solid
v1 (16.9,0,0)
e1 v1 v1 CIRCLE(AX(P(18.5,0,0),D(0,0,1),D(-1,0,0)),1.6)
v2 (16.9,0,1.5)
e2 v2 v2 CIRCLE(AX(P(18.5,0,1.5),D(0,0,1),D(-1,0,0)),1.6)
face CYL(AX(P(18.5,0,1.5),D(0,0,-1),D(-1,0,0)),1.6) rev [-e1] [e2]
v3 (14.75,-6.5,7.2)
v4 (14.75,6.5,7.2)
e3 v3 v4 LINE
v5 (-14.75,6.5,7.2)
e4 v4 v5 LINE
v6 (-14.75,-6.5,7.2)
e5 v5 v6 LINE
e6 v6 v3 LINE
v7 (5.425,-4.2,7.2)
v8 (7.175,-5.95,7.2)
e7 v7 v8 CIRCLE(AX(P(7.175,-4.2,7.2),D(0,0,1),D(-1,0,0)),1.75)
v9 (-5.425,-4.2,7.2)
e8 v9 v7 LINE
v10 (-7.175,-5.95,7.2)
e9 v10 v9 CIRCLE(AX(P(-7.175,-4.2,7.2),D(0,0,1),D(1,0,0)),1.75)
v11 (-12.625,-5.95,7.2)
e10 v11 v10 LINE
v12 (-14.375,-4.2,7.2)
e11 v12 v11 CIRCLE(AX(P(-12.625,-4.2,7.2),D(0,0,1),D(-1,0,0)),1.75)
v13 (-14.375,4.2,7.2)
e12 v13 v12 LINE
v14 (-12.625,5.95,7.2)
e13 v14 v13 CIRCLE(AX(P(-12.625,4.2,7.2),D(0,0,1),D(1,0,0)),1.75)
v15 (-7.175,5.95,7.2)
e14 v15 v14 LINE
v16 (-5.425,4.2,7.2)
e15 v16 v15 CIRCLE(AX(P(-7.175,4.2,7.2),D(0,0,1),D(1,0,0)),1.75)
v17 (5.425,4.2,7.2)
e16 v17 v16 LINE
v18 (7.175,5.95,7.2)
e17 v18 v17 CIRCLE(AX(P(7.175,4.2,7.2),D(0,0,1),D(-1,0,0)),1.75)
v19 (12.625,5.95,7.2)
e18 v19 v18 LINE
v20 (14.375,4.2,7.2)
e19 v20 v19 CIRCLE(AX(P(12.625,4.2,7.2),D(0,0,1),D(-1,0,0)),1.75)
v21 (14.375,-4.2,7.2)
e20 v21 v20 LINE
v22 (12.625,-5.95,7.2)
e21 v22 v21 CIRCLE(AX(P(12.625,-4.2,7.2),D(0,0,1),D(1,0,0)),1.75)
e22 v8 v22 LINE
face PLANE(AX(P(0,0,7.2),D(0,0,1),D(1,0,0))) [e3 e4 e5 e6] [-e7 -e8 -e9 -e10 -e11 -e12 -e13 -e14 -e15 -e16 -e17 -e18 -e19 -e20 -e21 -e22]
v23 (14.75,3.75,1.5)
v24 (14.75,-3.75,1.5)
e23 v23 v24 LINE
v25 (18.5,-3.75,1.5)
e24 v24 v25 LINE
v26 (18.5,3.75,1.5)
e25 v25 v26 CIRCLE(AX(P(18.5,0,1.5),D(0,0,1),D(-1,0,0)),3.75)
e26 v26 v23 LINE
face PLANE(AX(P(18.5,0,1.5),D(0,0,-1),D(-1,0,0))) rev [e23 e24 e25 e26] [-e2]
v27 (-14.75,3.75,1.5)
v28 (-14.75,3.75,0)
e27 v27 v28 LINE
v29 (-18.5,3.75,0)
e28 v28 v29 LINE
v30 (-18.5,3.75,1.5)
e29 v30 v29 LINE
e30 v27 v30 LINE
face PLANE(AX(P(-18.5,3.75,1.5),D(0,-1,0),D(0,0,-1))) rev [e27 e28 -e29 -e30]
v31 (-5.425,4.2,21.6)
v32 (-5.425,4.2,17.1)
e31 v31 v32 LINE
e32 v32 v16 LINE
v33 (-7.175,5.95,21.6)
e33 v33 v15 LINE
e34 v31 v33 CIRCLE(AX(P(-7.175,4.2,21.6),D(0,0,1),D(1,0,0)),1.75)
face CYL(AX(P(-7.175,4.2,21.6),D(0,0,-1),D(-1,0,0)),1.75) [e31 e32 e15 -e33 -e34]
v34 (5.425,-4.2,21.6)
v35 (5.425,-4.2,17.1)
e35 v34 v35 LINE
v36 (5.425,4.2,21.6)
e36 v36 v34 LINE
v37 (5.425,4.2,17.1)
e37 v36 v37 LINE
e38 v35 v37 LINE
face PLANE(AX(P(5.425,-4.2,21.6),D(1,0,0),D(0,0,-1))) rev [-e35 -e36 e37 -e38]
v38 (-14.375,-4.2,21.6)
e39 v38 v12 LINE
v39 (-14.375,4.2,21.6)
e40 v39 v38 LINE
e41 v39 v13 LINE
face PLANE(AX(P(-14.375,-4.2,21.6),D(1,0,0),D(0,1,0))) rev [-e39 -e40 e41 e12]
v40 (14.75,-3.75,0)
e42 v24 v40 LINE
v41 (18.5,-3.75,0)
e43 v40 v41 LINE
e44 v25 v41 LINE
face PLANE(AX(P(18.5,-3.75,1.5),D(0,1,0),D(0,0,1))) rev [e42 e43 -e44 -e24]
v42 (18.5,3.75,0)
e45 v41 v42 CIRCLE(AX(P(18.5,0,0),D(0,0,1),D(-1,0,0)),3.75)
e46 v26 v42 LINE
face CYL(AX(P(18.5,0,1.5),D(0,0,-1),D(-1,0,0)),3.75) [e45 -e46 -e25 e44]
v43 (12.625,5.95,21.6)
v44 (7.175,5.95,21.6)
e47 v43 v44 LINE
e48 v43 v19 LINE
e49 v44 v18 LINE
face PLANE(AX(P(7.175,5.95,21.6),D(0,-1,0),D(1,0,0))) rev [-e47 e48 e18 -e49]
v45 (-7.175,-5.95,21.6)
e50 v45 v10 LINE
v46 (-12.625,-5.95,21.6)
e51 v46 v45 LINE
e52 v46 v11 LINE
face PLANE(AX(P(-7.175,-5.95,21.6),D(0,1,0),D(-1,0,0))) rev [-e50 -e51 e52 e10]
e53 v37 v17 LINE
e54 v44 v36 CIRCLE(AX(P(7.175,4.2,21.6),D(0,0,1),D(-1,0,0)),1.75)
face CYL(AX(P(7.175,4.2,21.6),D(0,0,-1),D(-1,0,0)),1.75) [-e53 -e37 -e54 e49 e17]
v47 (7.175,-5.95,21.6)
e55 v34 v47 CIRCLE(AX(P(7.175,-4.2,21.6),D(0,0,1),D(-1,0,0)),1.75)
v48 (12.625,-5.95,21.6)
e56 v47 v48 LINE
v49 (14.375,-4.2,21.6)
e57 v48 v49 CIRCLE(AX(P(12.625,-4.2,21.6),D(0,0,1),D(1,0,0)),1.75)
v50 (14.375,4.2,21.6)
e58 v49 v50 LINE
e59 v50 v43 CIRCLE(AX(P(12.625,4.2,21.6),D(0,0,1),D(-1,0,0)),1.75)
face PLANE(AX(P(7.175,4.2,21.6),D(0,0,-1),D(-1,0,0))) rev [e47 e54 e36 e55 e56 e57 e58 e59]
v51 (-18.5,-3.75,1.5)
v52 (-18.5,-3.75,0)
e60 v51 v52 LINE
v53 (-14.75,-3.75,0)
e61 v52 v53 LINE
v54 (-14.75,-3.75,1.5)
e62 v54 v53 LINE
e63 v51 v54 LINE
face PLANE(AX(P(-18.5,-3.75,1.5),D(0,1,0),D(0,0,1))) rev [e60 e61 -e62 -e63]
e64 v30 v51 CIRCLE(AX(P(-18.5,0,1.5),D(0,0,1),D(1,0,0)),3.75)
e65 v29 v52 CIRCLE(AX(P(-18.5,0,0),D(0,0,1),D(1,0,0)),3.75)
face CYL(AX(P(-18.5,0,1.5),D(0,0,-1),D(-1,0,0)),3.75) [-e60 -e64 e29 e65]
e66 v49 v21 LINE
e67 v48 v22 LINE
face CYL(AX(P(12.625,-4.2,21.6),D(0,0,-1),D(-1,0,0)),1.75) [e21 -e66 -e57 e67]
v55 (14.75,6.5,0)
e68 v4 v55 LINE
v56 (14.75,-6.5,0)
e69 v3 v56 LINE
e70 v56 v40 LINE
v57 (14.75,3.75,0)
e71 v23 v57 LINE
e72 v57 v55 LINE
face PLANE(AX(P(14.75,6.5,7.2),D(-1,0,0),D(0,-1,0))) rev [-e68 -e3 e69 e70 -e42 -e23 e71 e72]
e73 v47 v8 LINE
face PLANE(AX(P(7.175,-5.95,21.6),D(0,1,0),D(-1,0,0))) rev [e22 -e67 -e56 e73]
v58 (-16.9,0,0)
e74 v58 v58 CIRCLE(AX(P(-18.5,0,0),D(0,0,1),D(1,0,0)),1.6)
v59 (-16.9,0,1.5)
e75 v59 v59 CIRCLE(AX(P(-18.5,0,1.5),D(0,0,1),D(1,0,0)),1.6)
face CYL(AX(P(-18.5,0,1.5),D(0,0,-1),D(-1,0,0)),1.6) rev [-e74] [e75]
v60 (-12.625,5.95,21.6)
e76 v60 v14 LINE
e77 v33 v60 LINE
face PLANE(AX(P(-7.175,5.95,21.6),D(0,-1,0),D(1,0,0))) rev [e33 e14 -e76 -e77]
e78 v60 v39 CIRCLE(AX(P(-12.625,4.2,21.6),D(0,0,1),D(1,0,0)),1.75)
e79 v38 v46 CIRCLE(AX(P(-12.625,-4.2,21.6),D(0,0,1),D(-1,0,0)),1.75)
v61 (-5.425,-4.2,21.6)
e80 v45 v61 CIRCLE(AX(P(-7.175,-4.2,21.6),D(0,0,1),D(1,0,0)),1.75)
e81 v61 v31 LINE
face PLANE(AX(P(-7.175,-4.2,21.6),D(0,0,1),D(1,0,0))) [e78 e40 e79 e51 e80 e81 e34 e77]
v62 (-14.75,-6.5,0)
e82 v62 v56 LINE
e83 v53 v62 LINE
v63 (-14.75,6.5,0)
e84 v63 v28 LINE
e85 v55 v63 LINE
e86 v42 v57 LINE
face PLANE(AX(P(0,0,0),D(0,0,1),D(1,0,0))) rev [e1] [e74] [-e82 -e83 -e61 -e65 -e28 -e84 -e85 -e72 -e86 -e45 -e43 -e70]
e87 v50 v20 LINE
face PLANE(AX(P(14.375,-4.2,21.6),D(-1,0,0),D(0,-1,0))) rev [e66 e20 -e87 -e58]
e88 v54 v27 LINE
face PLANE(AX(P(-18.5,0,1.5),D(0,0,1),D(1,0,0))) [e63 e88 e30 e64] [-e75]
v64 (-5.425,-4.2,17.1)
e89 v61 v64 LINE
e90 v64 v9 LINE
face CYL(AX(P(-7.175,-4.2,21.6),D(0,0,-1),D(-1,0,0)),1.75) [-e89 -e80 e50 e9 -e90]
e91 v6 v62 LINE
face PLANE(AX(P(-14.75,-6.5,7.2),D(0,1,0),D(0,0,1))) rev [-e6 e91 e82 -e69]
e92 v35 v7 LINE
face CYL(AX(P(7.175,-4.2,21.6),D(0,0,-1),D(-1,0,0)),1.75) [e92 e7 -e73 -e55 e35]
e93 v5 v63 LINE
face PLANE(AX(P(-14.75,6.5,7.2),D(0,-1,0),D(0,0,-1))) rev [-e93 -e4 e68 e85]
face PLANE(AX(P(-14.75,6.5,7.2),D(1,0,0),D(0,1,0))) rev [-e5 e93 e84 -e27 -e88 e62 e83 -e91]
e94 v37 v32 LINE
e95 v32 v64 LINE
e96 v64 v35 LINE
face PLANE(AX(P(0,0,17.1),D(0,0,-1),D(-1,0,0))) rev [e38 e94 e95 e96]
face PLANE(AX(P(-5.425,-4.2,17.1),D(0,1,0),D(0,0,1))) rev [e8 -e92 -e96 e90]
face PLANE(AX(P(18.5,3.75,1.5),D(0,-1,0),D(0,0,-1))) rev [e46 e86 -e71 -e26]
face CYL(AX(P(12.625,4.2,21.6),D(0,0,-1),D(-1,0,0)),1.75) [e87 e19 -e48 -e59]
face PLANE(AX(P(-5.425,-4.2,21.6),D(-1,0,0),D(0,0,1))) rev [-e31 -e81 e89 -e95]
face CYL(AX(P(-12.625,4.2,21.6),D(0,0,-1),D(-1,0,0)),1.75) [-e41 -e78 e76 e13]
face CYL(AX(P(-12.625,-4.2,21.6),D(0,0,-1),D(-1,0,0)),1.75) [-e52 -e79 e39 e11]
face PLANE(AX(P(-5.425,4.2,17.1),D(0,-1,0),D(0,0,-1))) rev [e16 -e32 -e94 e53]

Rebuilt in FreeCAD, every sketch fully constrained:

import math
import FreeCAD as App
import Part
import Sketcher
from FreeCAD import Vector
Q = App.Units.Quantity

doc = App.newDocument("Part")
params = doc.addObject("Spreadsheet::Sheet", "Params")
for row, (alias, value) in enumerate([
    ("sketch1_height", "13 mm"),
    ("sketch1_width", "29.5 mm"),
    ("pad1_length", "7.2 mm"),
    ("sketch2_diameter", "3.2 mm"),
    ("sketch2_radius", "3.75 mm"),
    ("sketch2_width", "3.75 mm"),
    ("pad2_length", "1.5 mm"),
    ("sketch3_radius", "1.75 mm"),
    ("sketch3_height", "8.4 mm"),
    ("sketch3_width", "5.45 mm"),
    ("pad3_length", "14.4 mm"),
    ("sketch4_height", "8.4 mm"),
    ("sketch4_width", "10.85 mm"),
    ("pad4_length", "9.9 mm"),
], start=1):
    params.set(f"A{row}", alias)
    params.set(f"B{row}", "=" + value)
    params.setAlias(f"B{row}", alias)

body = doc.addObject("PartDesign::Body", "Body")

sketch1 = doc.addObject("Sketcher::SketchObject", "Sketch")
body.addObject(sketch1)
sketch1.AttachmentSupport = (doc.XY_Plane, [""])
sketch1.MapMode = "FlatFace"
sketch1.addGeometry([
    Part.LineSegment(Vector(-15, 6, 0), Vector(-15, -6, 0)),
    Part.LineSegment(Vector(-15, -6, 0), Vector(15, -6, 0)),
    Part.LineSegment(Vector(15, -6, 0), Vector(15, 6, 0)),
    Part.LineSegment(Vector(15, 6, 0), Vector(-15, 6, 0)),
], False)
sketch1.addConstraint([
    Sketcher.Constraint("Coincident", 0, 2, 1, 1),
    Sketcher.Constraint("Coincident", 1, 2, 2, 1),
    Sketcher.Constraint("Coincident", 2, 2, 3, 1),
    Sketcher.Constraint("Coincident", 3, 2, 0, 1),
    Sketcher.Constraint("Vertical", 0),
    Sketcher.Constraint("Horizontal", 1),
    Sketcher.Constraint("Vertical", 2),
    Sketcher.Constraint("Horizontal", 3),
    Sketcher.Constraint("Symmetric", 0, 2, 2, 2, -1, 1),
    Sketcher.Constraint("DistanceY", 0, 2, 0, 1, Q("13 mm")),
    Sketcher.Constraint("DistanceX", 1, 1, 1, 2, Q("29.5 mm")),
])
sketch1.setExpression("Constraints[9]", "Params.sketch1_height")
sketch1.setExpression("Constraints[10]", "Params.sketch1_width")
pad1 = doc.addObject("PartDesign::Pad", "Pad")
body.addObject(pad1)
pad1.Profile = sketch1
pad1.setExpression("Length", "Params.pad1_length")

sketch2 = doc.addObject("Sketcher::SketchObject", "Sketch001")
body.addObject(sketch2)
sketch2.AttachmentSupport = (doc.XY_Plane, [""])
sketch2.MapMode = "FlatFace"
sketch2.addGeometry([
    Part.LineSegment(Vector(-14.8, 3.8, 0), Vector(-18.5, 3.8, 0)),
    Part.ArcOfCircle(Part.Circle(Vector(-18.5, 0, 0), Vector(0, 0, 1), 3.8), math.radians(90), math.radians(270)),
    Part.LineSegment(Vector(-18.5, -3.8, 0), Vector(-14.8, -3.8, 0)),
    Part.LineSegment(Vector(-14.8, -3.8, 0), Vector(-14.8, 3.8, 0)),
    Part.Circle(Vector(-18.5, 0, 0), Vector(0, 0, 1), 1.6),
    Part.LineSegment(Vector(14.8, 3.8, 0), Vector(14.8, -3.8, 0)),
    Part.LineSegment(Vector(14.8, -3.8, 0), Vector(18.5, -3.8, 0)),
    Part.ArcOfCircle(Part.Circle(Vector(18.5, 0, 0), Vector(0, 0, 1), 3.8), math.radians(-90), math.radians(90)),
    Part.LineSegment(Vector(18.5, 3.8, 0), Vector(14.8, 3.8, 0)),
    Part.Circle(Vector(18.5, 0, 0), Vector(0, 0, 1), 1.6),
], False)
sketch2.addConstraint([
    Sketcher.Constraint("Tangent", 0, 2, 1, 1),
    Sketcher.Constraint("Tangent", 1, 2, 2, 1),
    Sketcher.Constraint("Coincident", 2, 2, 3, 1),
    Sketcher.Constraint("Coincident", 3, 2, 0, 1),
    Sketcher.Constraint("Coincident", 5, 2, 6, 1),
    Sketcher.Constraint("Tangent", 6, 2, 7, 1),
    Sketcher.Constraint("Tangent", 7, 2, 8, 1),
    Sketcher.Constraint("Coincident", 8, 2, 5, 1),
    Sketcher.Constraint("Horizontal", 0),
    Sketcher.Constraint("Horizontal", 2),
    Sketcher.Constraint("Vertical", 3),
    Sketcher.Constraint("Vertical", 5),
    Sketcher.Constraint("Horizontal", 6),
    Sketcher.Constraint("Horizontal", 8),
    Sketcher.Constraint("Coincident", 4, 3, 1, 3),
    Sketcher.Constraint("Coincident", 9, 3, 7, 3),
    Sketcher.Constraint("Equal", 1, 7),
    Sketcher.Constraint("Equal", 4, 9),
    Sketcher.Constraint("Symmetric", 1, 3, 7, 3, -1, 1),
    Sketcher.Constraint("Symmetric", 2, 2, 5, 2, -2),
    Sketcher.Constraint("Diameter", 4, Q("3.2 mm")),
    Sketcher.Constraint("Radius", 1, Q("3.75 mm")),
    Sketcher.Constraint("DistanceX", 1, 3, 7, 3, Q("37 mm")),
    Sketcher.Constraint("DistanceX", 0, 2, 0, 1, Q("3.75 mm")),
])
sketch2.setExpression("Constraints[20]", "Params.sketch2_diameter")
sketch2.setExpression("Constraints[21]", "Params.sketch2_radius")
sketch2.setExpression("Constraints[23]", "Params.sketch2_width")
pad2 = doc.addObject("PartDesign::Pad", "Pad001")
body.addObject(pad2)
pad2.Profile = sketch2
pad2.setExpression("Length", "Params.pad2_length")

sketch3 = doc.addObject("Sketcher::SketchObject", "Sketch002")
body.addObject(sketch3)
sketch3.AttachmentSupport = (doc.XY_Plane, [""])
sketch3.MapMode = "FlatFace"
sketch3.AttachmentOffset = App.Placement(Vector(0, 0, 7.2), App.Rotation())
sketch3.addGeometry([
    Part.LineSegment(Vector(-12.6, -6, 0), Vector(-7.2, -6, 0)),
    Part.ArcOfCircle(Part.Circle(Vector(-7.2, -4.2, 0), Vector(0, 0, 1), 1.8), math.radians(-90), math.radians(0)),
    Part.LineSegment(Vector(-5.4, -4.2, 0), Vector(-5.4, 4.2, 0)),
    Part.ArcOfCircle(Part.Circle(Vector(-7.2, 4.2, 0), Vector(0, 0, 1), 1.8), math.radians(0), math.radians(90)),
    Part.LineSegment(Vector(-7.2, 6, 0), Vector(-12.6, 6, 0)),
    Part.ArcOfCircle(Part.Circle(Vector(-12.6, 4.2, 0), Vector(0, 0, 1), 1.8), math.radians(90), math.radians(180)),
    Part.LineSegment(Vector(-14.4, 4.2, 0), Vector(-14.4, -4.2, 0)),
    Part.ArcOfCircle(Part.Circle(Vector(-12.6, -4.2, 0), Vector(0, 0, 1), 1.8), math.radians(180), math.radians(270)),
    Part.LineSegment(Vector(14.4, -4.2, 0), Vector(14.4, 4.2, 0)),
    Part.ArcOfCircle(Part.Circle(Vector(12.6, 4.2, 0), Vector(0, 0, 1), 1.8), math.radians(0), math.radians(90)),
    Part.LineSegment(Vector(12.6, 6, 0), Vector(7.2, 6, 0)),
    Part.ArcOfCircle(Part.Circle(Vector(7.2, 4.2, 0), Vector(0, 0, 1), 1.8), math.radians(90), math.radians(180)),
    Part.LineSegment(Vector(5.4, 4.2, 0), Vector(5.4, -4.2, 0)),
    Part.ArcOfCircle(Part.Circle(Vector(7.2, -4.2, 0), Vector(0, 0, 1), 1.8), math.radians(180), math.radians(270)),
    Part.LineSegment(Vector(7.2, -6, 0), Vector(12.6, -6, 0)),
    Part.ArcOfCircle(Part.Circle(Vector(12.6, -4.2, 0), Vector(0, 0, 1), 1.8), math.radians(-90), math.radians(0)),
], False)
sketch3.addConstraint([
    Sketcher.Constraint("Tangent", 0, 2, 1, 1),
    Sketcher.Constraint("Tangent", 1, 2, 2, 1),
    Sketcher.Constraint("Tangent", 2, 2, 3, 1),
    Sketcher.Constraint("Tangent", 3, 2, 4, 1),
    Sketcher.Constraint("Tangent", 4, 2, 5, 1),
    Sketcher.Constraint("Tangent", 5, 2, 6, 1),
    Sketcher.Constraint("Tangent", 6, 2, 7, 1),
    Sketcher.Constraint("Tangent", 7, 2, 0, 1),
    Sketcher.Constraint("Tangent", 8, 2, 9, 1),
    Sketcher.Constraint("Tangent", 9, 2, 10, 1),
    Sketcher.Constraint("Tangent", 10, 2, 11, 1),
    Sketcher.Constraint("Tangent", 11, 2, 12, 1),
    Sketcher.Constraint("Tangent", 12, 2, 13, 1),
    Sketcher.Constraint("Tangent", 13, 2, 14, 1),
    Sketcher.Constraint("Tangent", 14, 2, 15, 1),
    Sketcher.Constraint("Tangent", 15, 2, 8, 1),
    Sketcher.Constraint("Horizontal", 0),
    Sketcher.Constraint("Vertical", 2),
    Sketcher.Constraint("Horizontal", 4),
    Sketcher.Constraint("Vertical", 6),
    Sketcher.Constraint("Vertical", 8),
    Sketcher.Constraint("Horizontal", 10),
    Sketcher.Constraint("Vertical", 12),
    Sketcher.Constraint("Horizontal", 14),
    Sketcher.Constraint("Equal", 1, 3),
    Sketcher.Constraint("Equal", 3, 5),
    Sketcher.Constraint("Equal", 5, 7),
    Sketcher.Constraint("Equal", 7, 9),
    Sketcher.Constraint("Equal", 9, 11),
    Sketcher.Constraint("Equal", 11, 13),
    Sketcher.Constraint("Equal", 13, 15),
    Sketcher.Constraint("Symmetric", 7, 3, 9, 3, -1, 1),
    Sketcher.Constraint("Symmetric", 3, 3, 13, 3, -1, 1),
    Sketcher.Constraint("Horizontal", 5, 3, 9, 3),
    Sketcher.Constraint("Radius", 1, Q("1.75 mm")),
    Sketcher.Constraint("DistanceY", 2, 1, 2, 2, Q("8.4 mm")),
    Sketcher.Constraint("DistanceX", 0, 1, 0, 2, Q("5.45 mm")),
    Sketcher.Constraint("DistanceX", 3, 3, 9, 3, Q("19.8 mm")),
])
sketch3.setExpression("Constraints[34]", "Params.sketch3_radius")
sketch3.setExpression("Constraints[35]", "Params.sketch3_height")
sketch3.setExpression("Constraints[36]", "Params.sketch3_width")
pad3 = doc.addObject("PartDesign::Pad", "Pad002")
body.addObject(pad3)
pad3.Profile = sketch3
pad3.setExpression("Length", "Params.pad3_length")

sketch4 = doc.addObject("Sketcher::SketchObject", "Sketch003")
body.addObject(sketch4)
sketch4.AttachmentSupport = (doc.XY_Plane, [""])
sketch4.MapMode = "FlatFace"
sketch4.AttachmentOffset = App.Placement(Vector(0, 0, 7.2), App.Rotation())
sketch4.addGeometry([
    Part.LineSegment(Vector(-5, 4, 0), Vector(-5, -4, 0)),
    Part.LineSegment(Vector(-5, -4, 0), Vector(5, -4, 0)),
    Part.LineSegment(Vector(5, -4, 0), Vector(5, 4, 0)),
    Part.LineSegment(Vector(5, 4, 0), Vector(-5, 4, 0)),
], False)
sketch4.addConstraint([
    Sketcher.Constraint("Coincident", 0, 2, 1, 1),
    Sketcher.Constraint("Coincident", 1, 2, 2, 1),
    Sketcher.Constraint("Coincident", 2, 2, 3, 1),
    Sketcher.Constraint("Coincident", 3, 2, 0, 1),
    Sketcher.Constraint("Vertical", 0),
    Sketcher.Constraint("Horizontal", 1),
    Sketcher.Constraint("Vertical", 2),
    Sketcher.Constraint("Horizontal", 3),
    Sketcher.Constraint("Symmetric", 0, 2, 2, 2, -1, 1),
    Sketcher.Constraint("DistanceY", 0, 2, 0, 1, Q("8.4 mm")),
    Sketcher.Constraint("DistanceX", 1, 1, 1, 2, Q("10.85 mm")),
])
sketch4.setExpression("Constraints[9]", "Params.sketch4_height")
sketch4.setExpression("Constraints[10]", "Params.sketch4_width")
pad4 = doc.addObject("PartDesign::Pad", "Pad003")
body.addObject(pad4)
pad4.Profile = sketch4
pad4.setExpression("Length", "Params.pad4_length")

doc.recompute()
